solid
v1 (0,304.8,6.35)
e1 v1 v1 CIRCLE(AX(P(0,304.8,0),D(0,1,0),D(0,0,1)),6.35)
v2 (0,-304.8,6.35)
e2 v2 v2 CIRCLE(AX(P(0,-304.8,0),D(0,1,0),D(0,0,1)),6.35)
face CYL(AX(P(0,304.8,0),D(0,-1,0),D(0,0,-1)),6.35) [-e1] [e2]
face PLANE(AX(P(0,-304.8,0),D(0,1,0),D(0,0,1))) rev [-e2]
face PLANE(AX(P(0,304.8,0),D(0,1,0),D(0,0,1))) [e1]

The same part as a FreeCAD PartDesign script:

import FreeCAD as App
import Part
import Sketcher
from FreeCAD import Vector
Q = App.Units.Quantity

doc = App.newDocument("Part")
body = doc.addObject("PartDesign::Body", "Body")

# Sketch on XZ plane
sketch1 = body.newObject("Sketcher::SketchObject", "Sketch")
sketch1.AttachmentSupport = (doc.getObject("XZ_Plane"), [""])
sketch1.MapMode = "FlatFace"
sketch1.addGeometry(Part.Circle(Vector(0, 0, 0), Vector(0, 0, 1), 6.35), False)
sketch1.addConstraint(Sketcher.Constraint("Coincident", 0, 3, -1, 1))
sketch1.addConstraint(Sketcher.Constraint("Diameter", 0, Q("0.5 in")))
pad1 = body.newObject("PartDesign::Pad", "Pad")
pad1.Profile = sketch1
pad1.Length = Q("24 in")
pad1.Midplane = True

doc.recompute()
